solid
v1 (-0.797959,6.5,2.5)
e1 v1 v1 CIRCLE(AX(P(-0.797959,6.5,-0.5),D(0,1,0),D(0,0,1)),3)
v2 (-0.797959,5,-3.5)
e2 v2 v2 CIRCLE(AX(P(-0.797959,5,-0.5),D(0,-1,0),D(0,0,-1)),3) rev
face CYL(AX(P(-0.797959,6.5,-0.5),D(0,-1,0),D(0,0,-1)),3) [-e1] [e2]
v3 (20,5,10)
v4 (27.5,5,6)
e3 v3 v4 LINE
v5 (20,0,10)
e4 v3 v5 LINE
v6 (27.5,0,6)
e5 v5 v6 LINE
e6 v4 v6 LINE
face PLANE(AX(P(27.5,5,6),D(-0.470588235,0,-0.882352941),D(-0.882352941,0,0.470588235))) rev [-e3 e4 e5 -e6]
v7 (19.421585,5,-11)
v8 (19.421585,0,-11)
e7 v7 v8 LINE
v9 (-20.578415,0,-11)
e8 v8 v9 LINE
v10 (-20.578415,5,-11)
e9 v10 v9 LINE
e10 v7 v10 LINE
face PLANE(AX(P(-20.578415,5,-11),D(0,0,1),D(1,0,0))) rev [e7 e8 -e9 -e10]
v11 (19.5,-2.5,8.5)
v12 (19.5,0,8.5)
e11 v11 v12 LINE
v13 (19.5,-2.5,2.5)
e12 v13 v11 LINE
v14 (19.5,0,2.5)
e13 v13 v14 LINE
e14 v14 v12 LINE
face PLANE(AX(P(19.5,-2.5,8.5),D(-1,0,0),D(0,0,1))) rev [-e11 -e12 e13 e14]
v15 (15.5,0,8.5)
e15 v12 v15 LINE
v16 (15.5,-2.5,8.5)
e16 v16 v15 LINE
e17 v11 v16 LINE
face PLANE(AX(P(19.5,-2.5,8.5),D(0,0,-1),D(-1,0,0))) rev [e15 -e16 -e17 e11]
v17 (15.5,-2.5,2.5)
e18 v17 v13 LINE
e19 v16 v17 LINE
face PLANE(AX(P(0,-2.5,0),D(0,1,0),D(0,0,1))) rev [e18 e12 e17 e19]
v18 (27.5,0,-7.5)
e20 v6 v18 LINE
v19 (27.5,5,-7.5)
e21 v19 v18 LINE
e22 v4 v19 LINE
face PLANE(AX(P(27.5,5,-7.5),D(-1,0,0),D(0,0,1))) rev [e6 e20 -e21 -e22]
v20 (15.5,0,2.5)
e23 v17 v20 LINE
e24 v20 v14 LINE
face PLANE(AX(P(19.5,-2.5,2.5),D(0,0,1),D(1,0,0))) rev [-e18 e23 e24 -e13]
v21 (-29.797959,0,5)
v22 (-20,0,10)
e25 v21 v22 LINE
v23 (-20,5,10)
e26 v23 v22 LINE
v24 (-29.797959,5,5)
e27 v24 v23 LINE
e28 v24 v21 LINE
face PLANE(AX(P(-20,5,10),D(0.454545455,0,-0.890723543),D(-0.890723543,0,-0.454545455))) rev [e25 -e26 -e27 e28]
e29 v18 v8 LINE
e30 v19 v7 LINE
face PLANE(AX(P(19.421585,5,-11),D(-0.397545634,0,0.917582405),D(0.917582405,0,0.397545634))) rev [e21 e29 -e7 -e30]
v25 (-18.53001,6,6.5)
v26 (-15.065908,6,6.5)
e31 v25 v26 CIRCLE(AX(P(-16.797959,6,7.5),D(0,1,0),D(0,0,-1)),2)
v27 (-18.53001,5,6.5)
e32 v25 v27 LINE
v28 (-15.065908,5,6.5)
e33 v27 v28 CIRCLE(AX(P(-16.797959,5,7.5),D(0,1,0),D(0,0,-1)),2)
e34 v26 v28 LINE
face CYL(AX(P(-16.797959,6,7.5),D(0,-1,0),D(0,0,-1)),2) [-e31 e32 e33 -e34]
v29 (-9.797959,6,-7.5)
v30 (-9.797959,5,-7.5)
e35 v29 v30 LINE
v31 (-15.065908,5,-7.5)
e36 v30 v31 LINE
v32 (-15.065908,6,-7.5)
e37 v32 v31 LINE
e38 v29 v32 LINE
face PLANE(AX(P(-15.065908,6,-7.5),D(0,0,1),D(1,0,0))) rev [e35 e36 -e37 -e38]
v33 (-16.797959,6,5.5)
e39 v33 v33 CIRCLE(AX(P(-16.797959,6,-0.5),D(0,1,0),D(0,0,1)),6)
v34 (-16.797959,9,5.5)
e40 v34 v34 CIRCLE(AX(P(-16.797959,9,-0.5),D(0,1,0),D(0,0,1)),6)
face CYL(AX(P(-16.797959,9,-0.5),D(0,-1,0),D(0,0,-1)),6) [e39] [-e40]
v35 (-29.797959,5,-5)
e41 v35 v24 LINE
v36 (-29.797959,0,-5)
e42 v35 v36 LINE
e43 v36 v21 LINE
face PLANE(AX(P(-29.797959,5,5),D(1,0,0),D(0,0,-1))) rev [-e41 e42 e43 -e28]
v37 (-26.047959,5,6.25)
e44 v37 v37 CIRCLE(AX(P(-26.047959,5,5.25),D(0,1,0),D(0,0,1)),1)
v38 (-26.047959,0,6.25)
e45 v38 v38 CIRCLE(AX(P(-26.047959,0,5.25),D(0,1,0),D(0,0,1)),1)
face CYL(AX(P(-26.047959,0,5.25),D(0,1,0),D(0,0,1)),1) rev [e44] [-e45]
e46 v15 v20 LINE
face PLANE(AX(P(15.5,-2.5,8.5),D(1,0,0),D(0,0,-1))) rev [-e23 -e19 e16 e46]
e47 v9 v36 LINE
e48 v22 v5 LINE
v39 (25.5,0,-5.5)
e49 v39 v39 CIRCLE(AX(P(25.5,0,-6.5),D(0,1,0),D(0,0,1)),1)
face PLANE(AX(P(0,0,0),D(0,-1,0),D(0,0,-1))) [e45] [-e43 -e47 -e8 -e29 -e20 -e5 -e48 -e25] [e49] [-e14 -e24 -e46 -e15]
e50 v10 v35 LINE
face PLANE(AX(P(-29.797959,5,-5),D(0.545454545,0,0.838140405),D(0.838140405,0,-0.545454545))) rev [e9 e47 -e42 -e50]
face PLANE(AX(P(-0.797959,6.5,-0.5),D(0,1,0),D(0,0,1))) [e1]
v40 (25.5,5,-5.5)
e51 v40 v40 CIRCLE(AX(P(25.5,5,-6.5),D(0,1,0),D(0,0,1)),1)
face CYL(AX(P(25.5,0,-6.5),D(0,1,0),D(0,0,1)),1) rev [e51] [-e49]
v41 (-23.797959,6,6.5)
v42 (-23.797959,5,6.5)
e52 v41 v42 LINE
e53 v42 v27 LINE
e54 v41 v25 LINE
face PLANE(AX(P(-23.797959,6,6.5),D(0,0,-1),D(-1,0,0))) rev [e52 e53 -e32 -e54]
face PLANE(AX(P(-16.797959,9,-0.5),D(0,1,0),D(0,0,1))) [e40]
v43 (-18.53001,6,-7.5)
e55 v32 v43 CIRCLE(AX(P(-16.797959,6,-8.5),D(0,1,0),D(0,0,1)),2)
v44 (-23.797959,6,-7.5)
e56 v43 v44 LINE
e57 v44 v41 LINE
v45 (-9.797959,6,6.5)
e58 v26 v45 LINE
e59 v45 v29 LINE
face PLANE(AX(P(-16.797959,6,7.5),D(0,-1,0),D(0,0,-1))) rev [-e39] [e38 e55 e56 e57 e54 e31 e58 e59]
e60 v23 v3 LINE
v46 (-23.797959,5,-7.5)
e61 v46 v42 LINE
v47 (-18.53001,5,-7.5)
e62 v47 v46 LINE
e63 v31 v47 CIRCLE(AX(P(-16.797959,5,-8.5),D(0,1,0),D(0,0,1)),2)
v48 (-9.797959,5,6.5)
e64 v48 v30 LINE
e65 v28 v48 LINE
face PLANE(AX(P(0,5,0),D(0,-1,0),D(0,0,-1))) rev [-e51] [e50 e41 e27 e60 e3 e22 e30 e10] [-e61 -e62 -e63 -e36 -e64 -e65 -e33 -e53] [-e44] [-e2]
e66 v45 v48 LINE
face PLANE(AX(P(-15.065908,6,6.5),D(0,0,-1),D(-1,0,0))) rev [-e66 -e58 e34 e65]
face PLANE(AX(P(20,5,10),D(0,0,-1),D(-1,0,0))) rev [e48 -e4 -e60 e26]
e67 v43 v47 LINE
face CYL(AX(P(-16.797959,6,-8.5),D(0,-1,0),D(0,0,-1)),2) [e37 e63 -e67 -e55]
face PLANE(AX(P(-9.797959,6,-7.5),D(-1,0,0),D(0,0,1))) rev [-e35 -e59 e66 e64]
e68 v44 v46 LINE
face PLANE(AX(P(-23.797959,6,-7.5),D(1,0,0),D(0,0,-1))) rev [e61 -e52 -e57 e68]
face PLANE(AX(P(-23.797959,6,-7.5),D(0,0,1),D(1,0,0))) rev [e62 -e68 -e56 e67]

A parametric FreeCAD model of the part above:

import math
import FreeCAD as App
import Part
import Sketcher

V = App.Vector

doc = App.newDocument("Part")
body = doc.addObject("PartDesign::Body", "Body")

sketch1 = body.newObject("Sketcher::SketchObject", "Sketch")
sketch1.AttachmentSupport = (doc.getObject("XZ_Plane"), [""])
sketch1.MapMode = "FlatFace"
sketch1.addGeometry(Part.LineSegment(V(-30, -5, 0), V(-30, 5, 0)), False)
sketch1.addGeometry(Part.LineSegment(V(-30, 5, 0), V(-20, 10, 0)), False)
sketch1.addGeometry(Part.LineSegment(V(-20, 10, 0), V(20, 10, 0)), False)
sketch1.addGeometry(Part.LineSegment(V(20, 10, 0), V(28, 6, 0)), False)
sketch1.addGeometry(Part.LineSegment(V(28, 6, 0), V(28, -8, 0)), False)
sketch1.addGeometry(Part.LineSegment(V(28, -8, 0), V(19, -11, 0)), False)
sketch1.addGeometry(Part.LineSegment(V(19, -11, 0), V(-21, -11, 0)), False)
sketch1.addGeometry(Part.LineSegment(V(-21, -11, 0), V(-30, -5, 0)), False)
sketch1.addConstraint(Sketcher.Constraint("Coincident", 0, 2, 1, 1))
sketch1.addConstraint(Sketcher.Constraint("Coincident", 1, 2, 2, 1))
sketch1.addConstraint(Sketcher.Constraint("Coincident", 2, 2, 3, 1))
sketch1.addConstraint(Sketcher.Constraint("Coincident", 3, 2, 4, 1))
sketch1.addConstraint(Sketcher.Constraint("Coincident", 4, 2, 5, 1))
sketch1.addConstraint(Sketcher.Constraint("Coincident", 5, 2, 6, 1))
sketch1.addConstraint(Sketcher.Constraint("Coincident", 6, 2, 7, 1))
sketch1.addConstraint(Sketcher.Constraint("Coincident", 7, 2, 0, 1))
sketch1.addConstraint(Sketcher.Constraint("Vertical", 0))
sketch1.addConstraint(Sketcher.Constraint("Horizontal", 2))
sketch1.addConstraint(Sketcher.Constraint("Vertical", 4))
sketch1.addConstraint(Sketcher.Constraint("Horizontal", 6))
sketch1.addConstraint(Sketcher.Constraint("Equal", 2, 6))
sketch1.addConstraint(Sketcher.Constraint("Equal", 1, 7))
sketch1.addConstraint(Sketcher.Constraint("DistanceX", 2, 1, 2, 2, 40.0))
sketch1.addConstraint(Sketcher.Constraint("DistanceY", 0, 1, 0, 2, 10.0))
sketch1.addConstraint(Sketcher.Constraint("Distance", 1, 11.0))
sketch1.addConstraint(Sketcher.Constraint("DistanceY", 4, 2, 4, 1, 13.5))
sketch1.addConstraint(Sketcher.Constraint("DistanceY", -1, 1, 0, 2, 5.0))
sketch1.addConstraint(Sketcher.Constraint("DistanceX", 1, 2, -1, 1, 20.0))
sketch1.addConstraint(Sketcher.Constraint("DistanceY", -1, 1, 1, 2, 10.0))
sketch1.addConstraint(Sketcher.Constraint("DistanceY", -1, 1, 3, 2, 6.0))
sketch1.addConstraint(Sketcher.Constraint("DistanceY", 5, 2, -1, 1, 11.0))
sketch1.addConstraint(Sketcher.Constraint("Distance", 3, 8.5))
pad1 = body.newObject("PartDesign::Pad", "Pad")
pad1.Profile = sketch1
pad1.Length = 5
pad1.Reversed = True

sketch2 = body.newObject("Sketcher::SketchObject", "Sketch001")
sketch2.AttachmentSupport = (doc.getObject("XZ_Plane"), [""])
sketch2.MapMode = "FlatFace"
sketch2.AttachmentOffset = App.Placement(V(0, 0, -5), App.Rotation())
sketch2.addGeometry(Part.LineSegment(V(-18.5, -7.5, 0), V(-23.8, -7.5, 0)), False)
sketch2.addGeometry(Part.LineSegment(V(-23.8, -7.5, 0), V(-23.8, 6.5, 0)), False)
sketch2.addGeometry(Part.LineSegment(V(-23.8, 6.5, 0), V(-18.5, 6.5, 0)), False)
sketch2.addGeometry(Part.ArcOfCircle(Part.Circle(V(-16.8, 7.5, 0), V(0, 0, 1), 2), math.radians(-30), math.radians(210)), False)
sketch2.addGeometry(Part.LineSegment(V(-15.1, 6.5, 0), V(-9.8, 6.5, 0)), False)
sketch2.addGeometry(Part.LineSegment(V(-9.8, 6.5, 0), V(-9.8, -7.5, 0)), False)
sketch2.addGeometry(Part.LineSegment(V(-9.8, -7.5, 0), V(-15.1, -7.5, 0)), False)
sketch2.addGeometry(Part.ArcOfCircle(Part.Circle(V(-16.8, -8.5, 0), V(0, 0, 1), 2), math.radians(150), math.radians(390)), False)
sketch2.addConstraint(Sketcher.Constraint("Coincident", 0, 2, 1, 1))
sketch2.addConstraint(Sketcher.Constraint("Coincident", 1, 2, 2, 1))
sketch2.addConstraint(Sketcher.Constraint("Coincident", 2, 2, 3, 2))
sketch2.addConstraint(Sketcher.Constraint("Coincident", 3, 1, 4, 1))
sketch2.addConstraint(Sketcher.Constraint("Coincident", 4, 2, 5, 1))
sketch2.addConstraint(Sketcher.Constraint("Coincident", 5, 2, 6, 1))
sketch2.addConstraint(Sketcher.Constraint("Coincident", 6, 2, 7, 2))
sketch2.addConstraint(Sketcher.Constraint("Coincident", 7, 1, 0, 1))
sketch2.addConstraint(Sketcher.Constraint("Horizontal", 0))
sketch2.addConstraint(Sketcher.Constraint("Vertical", 1))
sketch2.addConstraint(Sketcher.Constraint("Horizontal", 2))
sketch2.addConstraint(Sketcher.Constraint("Horizontal", 4))
sketch2.addConstraint(Sketcher.Constraint("Vertical", 5))
sketch2.addConstraint(Sketcher.Constraint("Horizontal", 6))
sketch2.addConstraint(Sketcher.Constraint("Equal", 3, 7))
sketch2.addConstraint(Sketcher.Constraint("Horizontal", 2, 2, 3, 1))
sketch2.addConstraint(Sketcher.Constraint("Horizontal", 0, 2, 5, 2))
sketch2.addConstraint(Sketcher.Constraint("Vertical", 3, 3, 7, 3))
sketch2.addConstraint(Sketcher.Constraint("Vertical", 3, 1, 6, 2))
sketch2.addConstraint(Sketcher.Constraint("Equal", 2, 4))
sketch2.addConstraint(Sketcher.Constraint("Radius", 3, 2.0))
sketch2.addConstraint(Sketcher.Constraint("DistanceY", 1, 1, 1, 2, 14.0))
sketch2.addConstraint(Sketcher.Constraint("DistanceY", 7, 3, 3, 3, 16.0))
sketch2.addConstraint(Sketcher.Constraint("DistanceX", 0, 2, 7, 3, 7.0))
sketch2.addConstraint(Sketcher.Constraint("DistanceY", -1, 1, 3, 3, 7.5))
sketch2.addConstraint(Sketcher.Constraint("DistanceX", 3, 3, -1, 1, 16.797959))
pad2 = body.newObject("PartDesign::Pad", "Pad001")
pad2.Profile = sketch2
pad2.Length = 1
pad2.Reversed = True

sketch3 = body.newObject("Sketcher::SketchObject", "Sketch002")
sketch3.AttachmentSupport = (doc.getObject("XZ_Plane"), [""])
sketch3.MapMode = "FlatFace"
sketch3.AttachmentOffset = App.Placement(V(0, 0, -6), App.Rotation())
sketch3.addGeometry(Part.Circle(V(-17, 0, 0), V(0, 0, 1), 6), False)
sketch3.addConstraint(Sketcher.Constraint("Diameter", 0, 12.0))
sketch3.addConstraint(Sketcher.Constraint("DistanceY", 0, 3, -1, 1, 0.5))
sketch3.addConstraint(Sketcher.Constraint("DistanceX", 0, 3, -1, 1, 16.797959))
pad3 = body.newObject("PartDesign::Pad", "Pad002")
pad3.Profile = sketch3
pad3.Length = 3
pad3.Reversed = True

sketch4 = body.newObject("Sketcher::SketchObject", "Sketch003")
sketch4.AttachmentSupport = (doc.getObject("XZ_Plane"), [""])
sketch4.MapMode = "FlatFace"
sketch4.AttachmentOffset = App.Placement(V(0, 0, -5), App.Rotation())
sketch4.addGeometry(Part.Circle(V(-0.8, -0.5, 0), V(0, 0, 1), 3), False)
sketch4.addConstraint(Sketcher.Constraint("Diameter", 0, 6.0))
sketch4.addConstraint(Sketcher.Constraint("DistanceY", 0, 3, -1, 1, 0.5))
sketch4.addConstraint(Sketcher.Constraint("DistanceX", 0, 3, -1, 1, 0.797959))
pad4 = body.newObject("PartDesign::Pad", "Pad003")
pad4.Profile = sketch4
pad4.Length = 1.5
pad4.Reversed = True

sketch5 = body.newObject("Sketcher::SketchObject", "Sketch004")
sketch5.AttachmentSupport = (doc.getObject("XZ_Plane"), [""])
sketch5.MapMode = "FlatFace"
sketch5.addGeometry(Part.LineSegment(V(15.5, 8.5, 0), V(15.5, 2.5, 0)), False)
sketch5.addGeometry(Part.LineSegment(V(15.5, 2.5, 0), V(19.5, 2.5, 0)), False)
sketch5.addGeometry(Part.LineSegment(V(19.5, 2.5, 0), V(19.5, 8.5, 0)), False)
sketch5.addGeometry(Part.LineSegment(V(19.5, 8.5, 0), V(15.5, 8.5, 0)), False)
sketch5.addConstraint(Sketcher.Constraint("Coincident", 0, 2, 1, 1))
sketch5.addConstraint(Sketcher.Constraint("Coincident", 1, 2, 2, 1))
sketch5.addConstraint(Sketcher.Constraint("Coincident", 2, 2, 3, 1))
sketch5.addConstraint(Sketcher.Constraint("Coincident", 3, 2, 0, 1))
sketch5.addConstraint(Sketcher.Constraint("Vertical", 0))
sketch5.addConstraint(Sketcher.Constraint("Horizontal", 1))
sketch5.addConstraint(Sketcher.Constraint("Vertical", 2))
sketch5.addConstraint(Sketcher.Constraint("Horizontal", 3))
sketch5.addConstraint(Sketcher.Constraint("DistanceX", 1, 1, 1, 2, 4.0))
sketch5.addConstraint(Sketcher.Constraint("DistanceY", 0, 2, 0, 1, 6.0))
sketch5.addConstraint(Sketcher.Constraint("DistanceX", -1, 1, 0, 2, 15.5))
sketch5.addConstraint(Sketcher.Constraint("DistanceY", -1, 1, 0, 2, 2.5))
pad5 = body.newObject("PartDesign::Pad", "Pad004")
pad5.Profile = sketch5
pad5.Length = 2.5

sketch6 = body.newObject("Sketcher::SketchObject", "Sketch005")
sketch6.AttachmentSupport = (doc.getObject("XZ_Plane"), [""])
sketch6.MapMode = "FlatFace"
sketch6.AttachmentOffset = App.Placement(V(0, 0, -5), App.Rotation())
sketch6.addGeometry(Part.Circle(V(-26, 5.2, 0), V(0, 0, 1), 1), False)
sketch6.addGeometry(Part.Circle(V(25.5, -6.5, 0), V(0, 0, 1), 1), False)
sketch6.addConstraint(Sketcher.Constraint("Equal", 0, 1))
sketch6.addConstraint(Sketcher.Constraint("Diameter", 0, 2.0))
sketch6.addConstraint(Sketcher.Constraint("DistanceX", -1, 1, 1, 3, 25.5))
sketch6.addConstraint(Sketcher.Constraint("DistanceY", 1, 3, -1, 1, 6.5))
sketch6.addConstraint(Sketcher.Constraint("DistanceY", -1, 1, 0, 3, 5.25))
sketch6.addConstraint(Sketcher.Constraint("DistanceX", 0, 3, -1, 1, 26.047959))
pocket1 = body.newObject("PartDesign::Pocket", "Pocket")
pocket1.Profile = sketch6
pocket1.Length = 5
pocket1.Reversed = True

doc.recompute()
